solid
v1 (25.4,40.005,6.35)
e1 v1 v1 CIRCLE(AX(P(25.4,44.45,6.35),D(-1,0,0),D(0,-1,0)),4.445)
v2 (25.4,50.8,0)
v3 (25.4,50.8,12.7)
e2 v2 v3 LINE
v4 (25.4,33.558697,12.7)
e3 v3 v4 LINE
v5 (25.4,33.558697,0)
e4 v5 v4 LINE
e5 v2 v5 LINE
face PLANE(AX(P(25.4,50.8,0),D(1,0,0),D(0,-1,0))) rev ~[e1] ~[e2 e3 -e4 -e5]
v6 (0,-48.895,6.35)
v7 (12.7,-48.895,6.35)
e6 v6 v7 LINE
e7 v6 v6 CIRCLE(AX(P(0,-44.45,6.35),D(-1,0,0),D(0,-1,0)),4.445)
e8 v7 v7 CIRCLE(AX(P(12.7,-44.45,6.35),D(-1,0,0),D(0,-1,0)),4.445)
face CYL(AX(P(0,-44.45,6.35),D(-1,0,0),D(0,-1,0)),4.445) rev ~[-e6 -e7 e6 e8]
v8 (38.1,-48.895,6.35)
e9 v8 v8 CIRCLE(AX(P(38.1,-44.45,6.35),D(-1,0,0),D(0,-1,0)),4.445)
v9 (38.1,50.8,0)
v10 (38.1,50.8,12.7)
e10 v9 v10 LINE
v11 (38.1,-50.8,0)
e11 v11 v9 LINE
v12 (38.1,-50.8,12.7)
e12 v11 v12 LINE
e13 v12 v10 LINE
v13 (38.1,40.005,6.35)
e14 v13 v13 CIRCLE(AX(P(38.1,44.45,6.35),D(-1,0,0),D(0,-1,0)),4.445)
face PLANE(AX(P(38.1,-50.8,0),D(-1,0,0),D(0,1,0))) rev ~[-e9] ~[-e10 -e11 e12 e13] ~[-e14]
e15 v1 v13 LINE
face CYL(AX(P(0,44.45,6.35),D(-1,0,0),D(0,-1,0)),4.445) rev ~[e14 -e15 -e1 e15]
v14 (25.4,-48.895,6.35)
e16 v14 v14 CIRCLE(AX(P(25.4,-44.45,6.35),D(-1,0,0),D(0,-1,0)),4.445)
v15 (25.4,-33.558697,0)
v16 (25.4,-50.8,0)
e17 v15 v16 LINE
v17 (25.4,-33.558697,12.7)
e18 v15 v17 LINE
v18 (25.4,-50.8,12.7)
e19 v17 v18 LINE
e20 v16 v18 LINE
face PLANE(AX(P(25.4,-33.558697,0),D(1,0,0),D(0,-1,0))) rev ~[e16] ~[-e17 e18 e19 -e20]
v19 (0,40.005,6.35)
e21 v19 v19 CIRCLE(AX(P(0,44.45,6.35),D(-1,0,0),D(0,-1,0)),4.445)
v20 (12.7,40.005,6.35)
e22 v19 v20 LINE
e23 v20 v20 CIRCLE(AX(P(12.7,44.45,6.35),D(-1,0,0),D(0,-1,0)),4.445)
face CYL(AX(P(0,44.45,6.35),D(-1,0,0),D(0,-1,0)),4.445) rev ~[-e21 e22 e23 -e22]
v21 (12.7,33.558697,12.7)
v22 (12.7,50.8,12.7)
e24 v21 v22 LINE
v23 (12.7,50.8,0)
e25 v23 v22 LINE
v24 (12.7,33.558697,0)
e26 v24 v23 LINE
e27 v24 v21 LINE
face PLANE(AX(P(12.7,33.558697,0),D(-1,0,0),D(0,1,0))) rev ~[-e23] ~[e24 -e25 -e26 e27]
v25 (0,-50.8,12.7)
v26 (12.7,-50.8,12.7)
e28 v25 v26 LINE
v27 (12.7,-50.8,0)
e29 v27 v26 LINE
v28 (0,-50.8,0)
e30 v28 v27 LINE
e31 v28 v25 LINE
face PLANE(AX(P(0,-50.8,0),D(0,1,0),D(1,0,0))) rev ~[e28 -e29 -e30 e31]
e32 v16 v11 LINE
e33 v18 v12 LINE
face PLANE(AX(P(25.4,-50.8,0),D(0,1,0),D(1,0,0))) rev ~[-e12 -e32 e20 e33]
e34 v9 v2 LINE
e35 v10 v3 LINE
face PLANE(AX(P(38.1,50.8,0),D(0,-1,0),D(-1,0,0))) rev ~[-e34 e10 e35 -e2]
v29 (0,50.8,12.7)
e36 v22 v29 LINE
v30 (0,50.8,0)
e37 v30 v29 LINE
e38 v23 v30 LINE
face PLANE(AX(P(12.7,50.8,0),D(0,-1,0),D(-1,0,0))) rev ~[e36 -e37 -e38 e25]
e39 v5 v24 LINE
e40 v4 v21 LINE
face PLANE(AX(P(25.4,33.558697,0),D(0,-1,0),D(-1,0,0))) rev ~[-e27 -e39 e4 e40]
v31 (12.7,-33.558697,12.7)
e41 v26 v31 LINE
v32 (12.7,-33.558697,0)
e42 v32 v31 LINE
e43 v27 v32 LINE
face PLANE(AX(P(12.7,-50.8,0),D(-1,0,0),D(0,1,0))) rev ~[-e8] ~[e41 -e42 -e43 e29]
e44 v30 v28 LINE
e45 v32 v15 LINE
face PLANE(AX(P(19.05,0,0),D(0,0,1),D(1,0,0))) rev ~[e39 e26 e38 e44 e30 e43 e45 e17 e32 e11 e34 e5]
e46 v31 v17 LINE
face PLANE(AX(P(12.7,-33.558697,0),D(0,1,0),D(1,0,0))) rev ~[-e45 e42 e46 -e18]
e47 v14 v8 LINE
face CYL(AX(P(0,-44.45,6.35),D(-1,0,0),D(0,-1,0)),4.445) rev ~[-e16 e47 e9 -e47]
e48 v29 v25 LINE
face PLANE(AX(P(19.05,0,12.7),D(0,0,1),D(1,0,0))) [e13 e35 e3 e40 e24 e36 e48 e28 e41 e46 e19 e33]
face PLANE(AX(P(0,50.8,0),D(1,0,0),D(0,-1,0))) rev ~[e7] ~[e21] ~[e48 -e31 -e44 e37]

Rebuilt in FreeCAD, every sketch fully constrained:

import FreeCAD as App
import Part
import Sketcher
from FreeCAD import Vector
Q = App.Units.Quantity

doc = App.newDocument("Part")
body = doc.addObject("PartDesign::Body", "Body")

sketch1 = doc.addObject("Sketcher::SketchObject", "Sketch")
body.addObject(sketch1)
sketch1.AttachmentSupport = (doc.XY_Plane, [""])
sketch1.MapMode = "FlatFace"
sketch1.addGeometry([
    Part.LineSegment(Vector(12.7, 50.8, 0), Vector(0, 50.8, 0)),
    Part.LineSegment(Vector(0, 50.8, 0), Vector(0, -50.8, 0)),
    Part.LineSegment(Vector(0, -50.8, 0), Vector(12.7, -50.8, 0)),
    Part.LineSegment(Vector(12.7, -50.8, 0), Vector(12.7, -33.558697, 0)),
    Part.LineSegment(Vector(12.7, -33.558697, 0), Vector(25.4, -33.558697, 0)),
    Part.LineSegment(Vector(25.4, -33.558697, 0), Vector(25.4, -50.8, 0)),
    Part.LineSegment(Vector(25.4, -50.8, 0), Vector(38.1, -50.8, 0)),
    Part.LineSegment(Vector(38.1, -50.8, 0), Vector(38.1, 50.8, 0)),
    Part.LineSegment(Vector(38.1, 50.8, 0), Vector(25.4, 50.8, 0)),
    Part.LineSegment(Vector(25.4, 50.8, 0), Vector(25.4, 33.558697, 0)),
    Part.LineSegment(Vector(25.4, 33.558697, 0), Vector(12.7, 33.558697, 0)),
    Part.LineSegment(Vector(12.7, 33.558697, 0), Vector(12.7, 50.8, 0)),
], False)
sketch1.addConstraint([
    Sketcher.Constraint("Coincident", 0, 2, 1, 1),
    Sketcher.Constraint("Coincident", 1, 2, 2, 1),
    Sketcher.Constraint("Coincident", 2, 2, 3, 1),
    Sketcher.Constraint("Coincident", 3, 2, 4, 1),
    Sketcher.Constraint("Coincident", 4, 2, 5, 1),
    Sketcher.Constraint("Coincident", 5, 2, 6, 1),
    Sketcher.Constraint("Coincident", 6, 2, 7, 1),
    Sketcher.Constraint("Coincident", 7, 2, 8, 1),
    Sketcher.Constraint("Coincident", 8, 2, 9, 1),
    Sketcher.Constraint("Coincident", 9, 2, 10, 1),
    Sketcher.Constraint("Coincident", 10, 2, 11, 1),
    Sketcher.Constraint("Coincident", 11, 2, 0, 1),
    Sketcher.Constraint("Horizontal", 0),
    Sketcher.Constraint("Vertical", 1),
    Sketcher.Constraint("Horizontal", 2),
    Sketcher.Constraint("Vertical", 3),
    Sketcher.Constraint("Horizontal", 4),
    Sketcher.Constraint("Vertical", 5),
    Sketcher.Constraint("Horizontal", 6),
    Sketcher.Constraint("Vertical", 7),
    Sketcher.Constraint("Horizontal", 8),
    Sketcher.Constraint("Vertical", 9),
    Sketcher.Constraint("Horizontal", 10),
    Sketcher.Constraint("Vertical", 11),
    Sketcher.Constraint("Symmetric", 0, 2, 1, 2, -1, 1),
    Sketcher.Constraint("Symmetric", 5, 2, 8, 2, -1),
    Sketcher.Constraint("Symmetric", 3, 2, 10, 2, -1),
    Sketcher.Constraint("Horizontal", 2, 2, 5, 2),
    Sketcher.Constraint("Equal", 2, 4),
    Sketcher.Constraint("Equal", 4, 6),
    Sketcher.Constraint("DistanceY", 1, 2, 1, 1, Q("4 in")),
    Sketcher.Constraint("DistanceX", 0, 2, 0, 1, Q("0.5 in")),
    Sketcher.Constraint("DistanceY", 3, 1, 3, 2, 17.241303),
])
pad1 = doc.addObject("PartDesign::Pad", "Pad")
body.addObject(pad1)
pad1.Profile = sketch1
pad1.Length = Q("0.5 in")

sketch2 = doc.addObject("Sketcher::SketchObject", "Sketch001")
body.addObject(sketch2)
sketch2.AttachmentSupport = (doc.YZ_Plane, [""])
sketch2.MapMode = "FlatFace"
sketch2.addGeometry([
    Part.Circle(Vector(44.45, 6.35, 0), Vector(0, 0, 1), 4.445),
    Part.Circle(Vector(-44.45, 6.35, 0), Vector(0, 0, 1), 4.445),
], False)
sketch2.addConstraint([
    Sketcher.Constraint("Equal", 0, 1),
    Sketcher.Constraint("Symmetric", 0, 3, 1, 3, -2),
    Sketcher.Constraint("Diameter", 0, Q("0.35 in")),
    Sketcher.Constraint("DistanceX", 1, 3, 0, 3, Q("3.5 in")),
    Sketcher.Constraint("DistanceY", -1, 1, 0, 3, Q("0.25 in")),
])
pocket1 = doc.addObject("PartDesign::Pocket", "Pocket")
body.addObject(pocket1)
pocket1.Profile = sketch2
pocket1.Type = "ThroughAll"
pocket1.Reversed = True

doc.recompute()
